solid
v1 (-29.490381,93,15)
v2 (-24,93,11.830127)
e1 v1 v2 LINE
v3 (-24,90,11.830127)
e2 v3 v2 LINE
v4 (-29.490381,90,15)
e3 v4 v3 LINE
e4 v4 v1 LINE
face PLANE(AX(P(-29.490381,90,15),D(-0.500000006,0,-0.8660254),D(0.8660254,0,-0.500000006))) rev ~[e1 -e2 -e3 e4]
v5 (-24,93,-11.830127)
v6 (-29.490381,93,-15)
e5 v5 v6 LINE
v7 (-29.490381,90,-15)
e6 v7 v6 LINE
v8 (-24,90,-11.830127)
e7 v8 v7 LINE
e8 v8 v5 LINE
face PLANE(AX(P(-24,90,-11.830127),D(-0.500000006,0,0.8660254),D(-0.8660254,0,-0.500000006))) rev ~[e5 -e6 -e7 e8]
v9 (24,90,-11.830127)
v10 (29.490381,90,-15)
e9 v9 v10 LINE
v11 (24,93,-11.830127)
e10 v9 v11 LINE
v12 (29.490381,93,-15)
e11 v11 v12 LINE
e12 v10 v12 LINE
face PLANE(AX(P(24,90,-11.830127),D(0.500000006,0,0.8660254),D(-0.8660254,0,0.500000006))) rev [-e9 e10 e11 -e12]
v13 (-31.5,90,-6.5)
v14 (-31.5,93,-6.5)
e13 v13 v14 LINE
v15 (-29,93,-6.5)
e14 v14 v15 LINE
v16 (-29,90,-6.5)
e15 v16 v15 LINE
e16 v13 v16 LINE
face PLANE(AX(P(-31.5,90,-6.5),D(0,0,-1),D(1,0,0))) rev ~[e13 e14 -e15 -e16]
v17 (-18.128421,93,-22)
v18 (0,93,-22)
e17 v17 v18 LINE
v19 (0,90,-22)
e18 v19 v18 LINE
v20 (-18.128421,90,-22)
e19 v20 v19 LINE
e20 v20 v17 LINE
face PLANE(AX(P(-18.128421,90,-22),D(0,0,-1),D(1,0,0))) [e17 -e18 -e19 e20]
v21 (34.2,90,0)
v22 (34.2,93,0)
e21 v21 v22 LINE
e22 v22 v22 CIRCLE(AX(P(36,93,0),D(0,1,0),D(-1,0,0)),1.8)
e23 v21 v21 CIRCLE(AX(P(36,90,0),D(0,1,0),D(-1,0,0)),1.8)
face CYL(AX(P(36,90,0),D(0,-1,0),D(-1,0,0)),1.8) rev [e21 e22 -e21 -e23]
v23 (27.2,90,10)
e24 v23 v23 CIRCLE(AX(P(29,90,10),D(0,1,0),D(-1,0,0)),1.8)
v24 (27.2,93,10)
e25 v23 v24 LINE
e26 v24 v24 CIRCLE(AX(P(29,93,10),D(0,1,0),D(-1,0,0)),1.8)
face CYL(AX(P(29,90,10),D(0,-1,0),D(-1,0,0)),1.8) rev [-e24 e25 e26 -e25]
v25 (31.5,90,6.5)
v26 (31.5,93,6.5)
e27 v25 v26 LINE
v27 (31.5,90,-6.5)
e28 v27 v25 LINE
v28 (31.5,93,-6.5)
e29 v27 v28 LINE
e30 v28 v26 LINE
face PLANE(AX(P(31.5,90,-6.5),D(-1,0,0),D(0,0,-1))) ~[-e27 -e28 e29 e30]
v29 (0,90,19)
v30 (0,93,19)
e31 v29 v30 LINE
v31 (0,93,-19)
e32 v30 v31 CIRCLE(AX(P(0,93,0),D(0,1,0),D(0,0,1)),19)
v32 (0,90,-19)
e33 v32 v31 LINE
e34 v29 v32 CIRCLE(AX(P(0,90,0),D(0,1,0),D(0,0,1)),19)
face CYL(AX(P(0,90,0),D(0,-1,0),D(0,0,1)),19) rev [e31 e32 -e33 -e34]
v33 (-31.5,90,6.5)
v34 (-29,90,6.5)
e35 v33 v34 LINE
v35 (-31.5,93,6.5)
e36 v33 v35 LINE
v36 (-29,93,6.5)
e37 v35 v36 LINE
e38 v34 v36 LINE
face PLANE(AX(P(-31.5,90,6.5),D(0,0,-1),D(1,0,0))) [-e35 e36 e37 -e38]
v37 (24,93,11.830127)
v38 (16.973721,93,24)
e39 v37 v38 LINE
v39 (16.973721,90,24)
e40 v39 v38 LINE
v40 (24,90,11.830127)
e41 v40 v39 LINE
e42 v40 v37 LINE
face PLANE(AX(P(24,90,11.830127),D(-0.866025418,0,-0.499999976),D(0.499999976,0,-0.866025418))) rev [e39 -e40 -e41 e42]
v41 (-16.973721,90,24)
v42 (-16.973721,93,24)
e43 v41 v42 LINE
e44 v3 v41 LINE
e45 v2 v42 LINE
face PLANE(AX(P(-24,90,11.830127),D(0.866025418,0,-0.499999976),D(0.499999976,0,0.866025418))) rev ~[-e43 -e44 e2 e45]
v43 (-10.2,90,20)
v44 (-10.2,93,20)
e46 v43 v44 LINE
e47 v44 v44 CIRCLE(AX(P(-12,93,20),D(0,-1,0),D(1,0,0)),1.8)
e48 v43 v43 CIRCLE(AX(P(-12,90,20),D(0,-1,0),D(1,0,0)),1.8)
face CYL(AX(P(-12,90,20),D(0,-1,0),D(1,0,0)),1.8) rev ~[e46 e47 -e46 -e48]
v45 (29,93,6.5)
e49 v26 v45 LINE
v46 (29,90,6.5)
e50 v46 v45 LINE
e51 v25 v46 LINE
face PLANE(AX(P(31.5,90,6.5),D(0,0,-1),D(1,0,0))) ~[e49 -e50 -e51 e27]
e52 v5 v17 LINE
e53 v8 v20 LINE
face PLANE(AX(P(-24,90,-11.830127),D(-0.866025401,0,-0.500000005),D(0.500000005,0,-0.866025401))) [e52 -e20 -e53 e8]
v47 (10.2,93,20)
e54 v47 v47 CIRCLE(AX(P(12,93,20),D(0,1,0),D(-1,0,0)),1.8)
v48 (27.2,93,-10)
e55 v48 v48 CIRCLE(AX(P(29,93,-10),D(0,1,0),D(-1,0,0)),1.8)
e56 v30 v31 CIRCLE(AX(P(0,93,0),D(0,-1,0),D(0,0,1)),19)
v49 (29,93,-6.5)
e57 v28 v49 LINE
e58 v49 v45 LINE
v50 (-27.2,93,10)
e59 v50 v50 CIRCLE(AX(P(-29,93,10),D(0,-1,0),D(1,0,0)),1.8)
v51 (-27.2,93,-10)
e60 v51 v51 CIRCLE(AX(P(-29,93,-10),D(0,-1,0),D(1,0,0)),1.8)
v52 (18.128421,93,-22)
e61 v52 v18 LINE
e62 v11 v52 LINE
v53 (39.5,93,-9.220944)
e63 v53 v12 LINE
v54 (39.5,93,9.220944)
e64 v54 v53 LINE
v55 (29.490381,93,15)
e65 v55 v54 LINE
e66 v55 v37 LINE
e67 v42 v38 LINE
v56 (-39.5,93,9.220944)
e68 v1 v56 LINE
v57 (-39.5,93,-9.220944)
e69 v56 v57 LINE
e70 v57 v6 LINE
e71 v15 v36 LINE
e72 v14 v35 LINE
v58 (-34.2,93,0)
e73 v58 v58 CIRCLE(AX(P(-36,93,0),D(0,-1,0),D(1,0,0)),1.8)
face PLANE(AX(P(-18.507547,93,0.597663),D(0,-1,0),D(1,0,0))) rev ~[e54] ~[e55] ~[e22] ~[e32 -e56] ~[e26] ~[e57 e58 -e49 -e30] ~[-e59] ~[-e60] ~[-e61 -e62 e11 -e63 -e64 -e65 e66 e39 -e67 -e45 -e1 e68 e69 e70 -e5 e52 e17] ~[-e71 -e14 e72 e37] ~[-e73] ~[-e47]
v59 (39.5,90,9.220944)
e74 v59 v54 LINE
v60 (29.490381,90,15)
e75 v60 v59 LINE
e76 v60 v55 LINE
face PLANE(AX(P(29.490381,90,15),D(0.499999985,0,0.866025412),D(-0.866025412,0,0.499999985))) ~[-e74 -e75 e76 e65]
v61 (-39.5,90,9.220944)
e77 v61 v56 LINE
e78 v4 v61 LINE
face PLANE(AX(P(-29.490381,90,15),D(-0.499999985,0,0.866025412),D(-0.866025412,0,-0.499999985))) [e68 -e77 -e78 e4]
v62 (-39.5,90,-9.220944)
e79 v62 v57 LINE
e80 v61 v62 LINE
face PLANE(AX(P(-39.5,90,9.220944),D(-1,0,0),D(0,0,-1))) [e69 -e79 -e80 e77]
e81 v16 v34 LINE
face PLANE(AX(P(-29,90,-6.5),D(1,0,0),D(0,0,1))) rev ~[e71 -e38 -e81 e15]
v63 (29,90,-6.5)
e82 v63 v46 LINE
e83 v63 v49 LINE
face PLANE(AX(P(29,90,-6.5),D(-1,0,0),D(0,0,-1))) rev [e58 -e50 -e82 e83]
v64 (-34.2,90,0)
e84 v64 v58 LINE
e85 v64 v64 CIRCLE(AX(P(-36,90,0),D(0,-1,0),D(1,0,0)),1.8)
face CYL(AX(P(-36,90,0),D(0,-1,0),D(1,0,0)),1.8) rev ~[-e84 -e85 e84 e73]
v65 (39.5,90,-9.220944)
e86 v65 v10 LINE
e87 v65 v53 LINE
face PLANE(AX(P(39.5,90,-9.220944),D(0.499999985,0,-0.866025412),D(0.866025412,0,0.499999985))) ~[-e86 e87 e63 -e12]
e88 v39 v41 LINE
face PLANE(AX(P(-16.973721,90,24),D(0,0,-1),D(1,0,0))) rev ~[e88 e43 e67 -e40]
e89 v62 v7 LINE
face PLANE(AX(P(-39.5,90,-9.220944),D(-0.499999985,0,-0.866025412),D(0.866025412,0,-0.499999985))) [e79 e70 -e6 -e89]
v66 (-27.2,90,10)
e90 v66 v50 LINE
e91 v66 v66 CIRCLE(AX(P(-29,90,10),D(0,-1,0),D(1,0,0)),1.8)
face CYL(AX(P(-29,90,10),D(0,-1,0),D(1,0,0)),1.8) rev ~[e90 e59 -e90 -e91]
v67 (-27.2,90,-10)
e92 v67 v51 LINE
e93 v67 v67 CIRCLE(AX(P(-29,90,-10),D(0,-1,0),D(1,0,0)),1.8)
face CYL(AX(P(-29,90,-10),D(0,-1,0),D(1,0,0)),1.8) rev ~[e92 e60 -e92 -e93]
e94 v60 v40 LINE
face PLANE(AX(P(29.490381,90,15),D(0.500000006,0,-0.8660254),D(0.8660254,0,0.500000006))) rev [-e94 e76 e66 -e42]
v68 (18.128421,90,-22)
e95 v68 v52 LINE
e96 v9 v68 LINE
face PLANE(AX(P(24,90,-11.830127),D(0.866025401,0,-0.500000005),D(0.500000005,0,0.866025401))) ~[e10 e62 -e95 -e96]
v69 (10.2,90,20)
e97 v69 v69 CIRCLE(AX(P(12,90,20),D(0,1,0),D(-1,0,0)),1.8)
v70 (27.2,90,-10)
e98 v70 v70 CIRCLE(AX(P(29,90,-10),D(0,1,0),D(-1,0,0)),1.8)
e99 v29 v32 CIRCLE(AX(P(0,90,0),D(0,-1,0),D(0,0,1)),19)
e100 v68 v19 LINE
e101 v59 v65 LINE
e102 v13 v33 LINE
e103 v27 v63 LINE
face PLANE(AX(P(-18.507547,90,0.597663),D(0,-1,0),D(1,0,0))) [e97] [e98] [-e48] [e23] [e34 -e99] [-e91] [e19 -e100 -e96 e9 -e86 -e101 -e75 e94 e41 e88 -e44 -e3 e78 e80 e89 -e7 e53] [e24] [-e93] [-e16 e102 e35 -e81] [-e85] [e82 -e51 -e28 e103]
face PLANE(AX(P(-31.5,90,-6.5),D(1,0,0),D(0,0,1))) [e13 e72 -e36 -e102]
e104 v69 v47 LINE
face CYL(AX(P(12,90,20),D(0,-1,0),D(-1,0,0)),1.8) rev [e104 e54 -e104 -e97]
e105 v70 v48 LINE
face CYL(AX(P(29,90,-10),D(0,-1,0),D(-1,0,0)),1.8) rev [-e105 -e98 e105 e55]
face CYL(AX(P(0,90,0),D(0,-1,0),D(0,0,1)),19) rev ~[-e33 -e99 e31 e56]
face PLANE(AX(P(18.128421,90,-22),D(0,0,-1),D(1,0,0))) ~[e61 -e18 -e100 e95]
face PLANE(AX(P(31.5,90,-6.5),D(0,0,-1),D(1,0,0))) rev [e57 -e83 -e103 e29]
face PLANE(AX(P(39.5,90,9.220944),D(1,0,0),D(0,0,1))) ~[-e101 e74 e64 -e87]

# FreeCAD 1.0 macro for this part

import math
import FreeCAD as App
import Part
import Sketcher

V = App.Vector
Q = App.Units.Quantity


def add_polygon(sketch, points):
    """Adds a closed chain of lines whose ends are joined by coincident constraints."""
    first, n = sketch.GeometryCount, len(points)
    for a, b in zip(points, points[1:] + points[:1]):
        sketch.addGeometry(Part.LineSegment(App.Vector(*a, 0), App.Vector(*b, 0)), False)
    for i in range(n):
        sketch.addConstraint(Sketcher.Constraint("Coincident", first + i, 2, first + (i + 1) % n, 1))

doc = App.newDocument("Part")
body = doc.addObject("PartDesign::Body", "Body")

# Sketch on XZ plane
sketch1 = doc.addObject("Sketcher::SketchObject", "Sketch")
body.addObject(sketch1)
sketch1.AttachmentSupport = (doc.XZ_Plane, [""])
sketch1.MapMode = "FlatFace"
sketch1.AttachmentOffset = App.Placement(V(0, 0, -90), App.Rotation())
sketch1.addGeometry(Part.LineSegment(V(-29.5, 15, 0), V(-39.5, 9.2, 0)), False)  # 0
sketch1.addGeometry(Part.LineSegment(V(-39.5, 9.2, 0), V(-39.5, -9.2, 0)), False)  # 1
sketch1.addGeometry(Part.LineSegment(V(-39.5, -9.2, 0), V(-29.5, -15, 0)), False)  # 2
sketch1.addGeometry(Part.LineSegment(V(-29.5, -15, 0), V(-24, -11.8, 0)), False)  # 3
sketch1.addGeometry(Part.LineSegment(V(-24, -11.8, 0), V(-18.1, -22, 0)), False)  # 4
sketch1.addGeometry(Part.LineSegment(V(-18.1, -22, 0), V(0, -22, 0)), False)  # 5
sketch1.addGeometry(Part.LineSegment(V(0, -22, 0), V(0, -19, 0)), False)  # 6
sketch1.addGeometry(Part.ArcOfCircle(Part.Circle(V(0, 0, 0), V(0, 0, 1), 19), math.radians(90), math.radians(270)), False)  # 7
sketch1.addGeometry(Part.LineSegment(V(0, 19, 0), V(0, 24, 0)), False)  # 8
sketch1.addGeometry(Part.LineSegment(V(0, 24, 0), V(-17, 24, 0)), False)  # 9
sketch1.addGeometry(Part.LineSegment(V(-17, 24, 0), V(-24, 11.8, 0)), False)  # 10
sketch1.addGeometry(Part.LineSegment(V(-24, 11.8, 0), V(-29.5, 15, 0)), False)  # 11
sketch1.addGeometry(Part.Circle(V(-29, -10, 0), V(0, 0, 1), 1.8), False)  # 12
sketch1.addGeometry(Part.Circle(V(-36, 0, 0), V(0, 0, 1), 1.8), False)  # 13
add_polygon(sketch1, [(-29, -6.5), (-31.5, -6.5), (-31.5, 6.5), (-29, 6.5)])  # lines 14-17
sketch1.addGeometry(Part.Circle(V(-29, 10, 0), V(0, 0, 1), 1.8), False)  # 18
sketch1.addGeometry(Part.Circle(V(-12, 20, 0), V(0, 0, 1), 1.8), False)  # 19
sketch1.addConstraint([
    Sketcher.Constraint("Coincident", 0, 2, 1, 1),
    Sketcher.Constraint("Coincident", 1, 2, 2, 1),
    Sketcher.Constraint("Coincident", 2, 2, 3, 1),
    Sketcher.Constraint("Coincident", 3, 2, 4, 1),
    Sketcher.Constraint("Coincident", 4, 2, 5, 1),
    Sketcher.Constraint("Coincident", 5, 2, 6, 1),
    Sketcher.Constraint("Coincident", 6, 2, 7, 2),
    Sketcher.Constraint("Coincident", 7, 1, 8, 1),
    Sketcher.Constraint("Coincident", 8, 2, 9, 1),
    Sketcher.Constraint("Coincident", 9, 2, 10, 1),
    Sketcher.Constraint("Coincident", 10, 2, 11, 1),
    Sketcher.Constraint("Coincident", 11, 2, 0, 1),
    Sketcher.Constraint("Vertical", 1),
    Sketcher.Constraint("Horizontal", 5),
    Sketcher.Constraint("Vertical", 6),
    Sketcher.Constraint("Vertical", 8),
    Sketcher.Constraint("Horizontal", 9),
    Sketcher.Constraint("Horizontal", 14),
    Sketcher.Constraint("Vertical", 15),
    Sketcher.Constraint("Horizontal", 16),
    Sketcher.Constraint("Vertical", 17),
    Sketcher.Constraint("Coincident", 7, 3, -1, 1),
    Sketcher.Constraint("Equal", 12, 13),
    Sketcher.Constraint("Equal", 13, 18),
    Sketcher.Constraint("Equal", 18, 19),
    Sketcher.Constraint("Symmetric", 12, 3, 18, 3, -1),
    Sketcher.Constraint("Symmetric", 3, 2, 10, 2, -1),
    Sketcher.Constraint("Symmetric", 2, 2, 11, 2, -1),
    Sketcher.Constraint("PointOnObject", 13, 3, -1),
    Sketcher.Constraint("PointOnObject", 5, 2, -2),
    Sketcher.Constraint("PointOnObject", 7, 1, -2),
    Sketcher.Constraint("Parallel", 0, 3),
    Sketcher.Constraint("Perpendicular", 3, 4),
    Sketcher.Constraint("Perpendicular", 2, 10),
    Sketcher.Constraint("Perpendicular", 10, 11),
    Sketcher.Constraint("Vertical", 18, 3, 16, 2),
    Sketcher.Constraint("Radius", 7, Q("19 mm")),
    Sketcher.Constraint("Diameter", 12, Q("3.6 mm")),
    Sketcher.Constraint("DistanceY", 6, 1, 6, 2, Q("3 mm")),
    Sketcher.Constraint("DistanceY", 8, 1, 8, 2, Q("5 mm")),
    Sketcher.Constraint("DistanceY", 15, 1, 15, 2, Q("13 mm")),
    Sketcher.Constraint("Angle", 0, Q("-150.000001 deg")),
    Sketcher.Constraint("DistanceX", 14, 2, 14, 1, Q("2.5 mm")),
    Sketcher.Constraint("DistanceX", 12, 3, -1, 1, Q("29 mm")),
    Sketcher.Constraint("DistanceY", 12, 3, -1, 1, Q("10 mm")),
    Sketcher.Constraint("DistanceX", 13, 3, -1, 1, Q("36 mm")),
    Sketcher.Constraint("DistanceX", 19, 3, -1, 1, Q("12 mm")),
    Sketcher.Constraint("DistanceY", -1, 1, 19, 3, Q("20 mm")),
    Sketcher.Constraint("DistanceY", 2, 2, -1, 1, Q("15 mm")),
    Sketcher.Constraint("DistanceX", 3, 2, -1, 1, Q("24 mm")),
    Sketcher.Constraint("DistanceX", 1, 2, 14, 2, Q("8 mm")),
    Sketcher.Constraint("DistanceY", 14, 2, -1, 1, Q("6.5 mm")),
    Sketcher.Constraint("DistanceX", 5, 1, 5, 2, Q("18.128421 mm")),
])
pad1 = doc.addObject("PartDesign::Pad", "Pad")
body.addObject(pad1)
pad1.Profile = sketch1
pad1.Length = 3
pad1.Reversed = True
body2 = doc.addObject("PartDesign::Body", "Body001")
doc.recompute()

mirroring = doc.addObject("Part::Mirroring", "Mirroring")
mirroring.Source = body
mirroring.Base = V(0, 0, 0)
mirroring.Normal = V(1, 0, 0)
body2.BaseFeature = mirroring
doc.recompute()

boolean = doc.addObject("PartDesign::Boolean", "Boolean")
body2.addObject(boolean)
boolean.Type = "Fuse"
boolean.addObjects([body])
mirroring.Visibility = False

doc.recompute()
